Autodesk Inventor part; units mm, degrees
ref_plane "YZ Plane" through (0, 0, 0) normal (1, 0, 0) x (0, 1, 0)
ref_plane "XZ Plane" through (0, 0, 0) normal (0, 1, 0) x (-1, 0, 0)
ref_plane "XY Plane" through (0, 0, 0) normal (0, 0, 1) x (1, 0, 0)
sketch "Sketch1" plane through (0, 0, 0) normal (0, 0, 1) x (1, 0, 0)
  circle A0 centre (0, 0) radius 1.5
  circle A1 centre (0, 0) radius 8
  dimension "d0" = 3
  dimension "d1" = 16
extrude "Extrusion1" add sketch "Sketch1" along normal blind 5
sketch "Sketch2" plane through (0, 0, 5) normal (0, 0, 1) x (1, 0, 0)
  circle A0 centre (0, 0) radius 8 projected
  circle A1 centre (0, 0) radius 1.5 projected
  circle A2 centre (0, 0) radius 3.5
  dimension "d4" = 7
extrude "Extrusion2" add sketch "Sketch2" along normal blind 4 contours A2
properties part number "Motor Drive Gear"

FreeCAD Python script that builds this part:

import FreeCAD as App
import Part
import Sketcher
Q = App.Units.Quantity

doc = App.newDocument("Part")
body = doc.addObject("PartDesign::Body", "Body")

sketch1 = body.newObject("Sketcher::SketchObject", "Sketch")
sketch1.AttachmentSupport = (doc.getObject("XY_Plane"), [""])
sketch1.MapMode = "FlatFace"
sketch1.addGeometry(Part.Circle(App.Vector(0, 0, 0), App.Vector(0, 0, 1), 8), False)
sketch1.addGeometry(Part.Circle(App.Vector(0, 0, 0), App.Vector(0, 0, 1), 1.5), False)
sketch1.addConstraint(Sketcher.Constraint("Coincident", 0, 3, -1, 1))
sketch1.addConstraint(Sketcher.Constraint("Coincident", 1, 3, -1, 1))
sketch1.addConstraint(Sketcher.Constraint("Diameter", 0, Q("16 mm")))
sketch1.addConstraint(Sketcher.Constraint("Diameter", 1, Q("3 mm")))
pad1 = body.newObject("PartDesign::Pad", "Pad")
pad1.Profile = sketch1
pad1.Length = 5

sketch2 = body.newObject("Sketcher::SketchObject", "Sketch001")
sketch2.AttachmentSupport = (doc.getObject("XY_Plane"), [""])
sketch2.MapMode = "FlatFace"
sketch2.AttachmentOffset = App.Placement(App.Vector(0, 0, 5), App.Rotation())
sketch2.addGeometry(Part.Circle(App.Vector(0, 0, 0), App.Vector(0, 0, 1), 3.5), False)
sketch2.addGeometry(Part.Circle(App.Vector(0, 0, 0), App.Vector(0, 0, 1), 1.5), False)
sketch2.addConstraint(Sketcher.Constraint("Coincident", 0, 3, -1, 1))
sketch2.addConstraint(Sketcher.Constraint("Coincident", 1, 3, -1, 1))
sketch2.addConstraint(Sketcher.Constraint("Diameter", 0, Q("7 mm")))
sketch2.addConstraint(Sketcher.Constraint("Diameter", 1, Q("3 mm")))
pad2 = body.newObject("PartDesign::Pad", "Pad001")
pad2.Profile = sketch2
pad2.Length = 4

doc.recompute()
